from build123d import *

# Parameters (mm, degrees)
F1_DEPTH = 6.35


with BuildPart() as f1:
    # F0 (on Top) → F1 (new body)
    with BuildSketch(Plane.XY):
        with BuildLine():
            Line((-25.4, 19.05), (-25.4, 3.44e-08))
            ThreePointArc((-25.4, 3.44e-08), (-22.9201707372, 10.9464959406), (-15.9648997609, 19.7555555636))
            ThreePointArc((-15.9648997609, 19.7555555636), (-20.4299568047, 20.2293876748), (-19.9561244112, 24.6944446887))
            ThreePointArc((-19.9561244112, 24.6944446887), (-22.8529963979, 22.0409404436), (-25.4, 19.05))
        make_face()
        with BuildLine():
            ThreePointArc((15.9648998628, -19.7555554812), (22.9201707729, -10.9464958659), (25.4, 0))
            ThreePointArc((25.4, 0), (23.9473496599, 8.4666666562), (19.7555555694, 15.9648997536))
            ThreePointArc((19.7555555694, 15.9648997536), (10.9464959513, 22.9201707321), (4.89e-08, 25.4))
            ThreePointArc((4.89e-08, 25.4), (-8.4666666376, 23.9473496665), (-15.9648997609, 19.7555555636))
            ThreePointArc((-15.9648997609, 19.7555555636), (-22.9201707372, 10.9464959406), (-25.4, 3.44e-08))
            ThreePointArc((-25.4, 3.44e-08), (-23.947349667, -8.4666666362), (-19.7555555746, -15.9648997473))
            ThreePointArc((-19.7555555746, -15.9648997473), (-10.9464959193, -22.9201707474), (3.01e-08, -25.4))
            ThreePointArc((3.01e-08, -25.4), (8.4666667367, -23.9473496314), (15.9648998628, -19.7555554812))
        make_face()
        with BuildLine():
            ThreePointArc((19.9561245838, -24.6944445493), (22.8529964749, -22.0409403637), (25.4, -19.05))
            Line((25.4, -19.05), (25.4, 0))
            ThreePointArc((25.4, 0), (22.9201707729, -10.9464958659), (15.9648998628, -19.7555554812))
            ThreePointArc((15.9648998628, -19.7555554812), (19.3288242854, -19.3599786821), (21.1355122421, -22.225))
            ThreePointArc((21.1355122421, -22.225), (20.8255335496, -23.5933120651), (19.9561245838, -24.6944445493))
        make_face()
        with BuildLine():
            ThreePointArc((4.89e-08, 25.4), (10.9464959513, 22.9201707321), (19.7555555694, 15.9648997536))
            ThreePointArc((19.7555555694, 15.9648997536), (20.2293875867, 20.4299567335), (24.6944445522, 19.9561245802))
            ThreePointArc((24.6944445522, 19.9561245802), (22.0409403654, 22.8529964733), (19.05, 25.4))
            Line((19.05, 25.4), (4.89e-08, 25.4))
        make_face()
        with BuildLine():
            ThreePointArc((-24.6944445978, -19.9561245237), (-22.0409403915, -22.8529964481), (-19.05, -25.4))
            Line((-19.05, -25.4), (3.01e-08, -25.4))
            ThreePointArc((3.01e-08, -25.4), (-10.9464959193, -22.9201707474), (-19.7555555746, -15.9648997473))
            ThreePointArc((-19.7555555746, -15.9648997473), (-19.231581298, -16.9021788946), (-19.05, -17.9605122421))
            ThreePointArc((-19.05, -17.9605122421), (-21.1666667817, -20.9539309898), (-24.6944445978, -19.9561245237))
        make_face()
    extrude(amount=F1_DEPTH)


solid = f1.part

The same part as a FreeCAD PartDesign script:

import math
import FreeCAD as App
import Part
import Sketcher
from FreeCAD import Vector
Q = App.Units.Quantity

doc = App.newDocument("Part")
body = doc.addObject("PartDesign::Body", "Body")

# Sketch on XY plane
sketch1 = body.newObject("Sketcher::SketchObject", "Sketch")
sketch1.AttachmentSupport = (doc.getObject("XY_Plane"), [""])
sketch1.MapMode = "FlatFace"
sketch1.addGeometry([
    Part.LineSegment(Vector(-25.4, 19.1, 0), Vector(-25.4, 0, 0)),  # 0
    Part.ArcOfCircle(Part.Circle(Vector(0, 0, 0), Vector(0, 0, 1), 25.4), math.radians(180), math.radians(219)),  # 1
    Part.ArcOfCircle(Part.Circle(Vector(-22.2, -18, 0), Vector(0, 0, 1), 3.2), math.radians(0), math.radians(39)),  # 2
    Part.ArcOfCircle(Part.Circle(Vector(-22.2, -18, 0), Vector(0, 0, 1), 3.2), math.radians(-141), math.radians(0)),  # 3
    Part.ArcOfCircle(Part.Circle(Vector(0, 0, 0), Vector(0, 0, 1), 31.8), math.radians(-141.06), math.radians(-126.87)),  # 4
    Part.LineSegment(Vector(-19.1, -25.4, 0), Vector(0, -25.4, 0)),  # 5
    Part.ArcOfCircle(Part.Circle(Vector(0, 0, 0), Vector(0, 0, 1), 25.4), math.radians(-90), math.radians(-51)),  # 6
    Part.ArcOfCircle(Part.Circle(Vector(18, -22.2, 0), Vector(0, 0, 1), 3.2), math.radians(0), math.radians(129)),  # 7
    Part.ArcOfCircle(Part.Circle(Vector(18, -22.2, 0), Vector(0, 0, 1), 3.2), math.radians(-51), math.radians(0)),  # 8
    Part.ArcOfCircle(Part.Circle(Vector(0, 0, 0), Vector(0, 0, 1), 31.8), math.radians(-51.06), math.radians(-36.87)),  # 9
    Part.LineSegment(Vector(25.4, -19.1, 0), Vector(25.4, 0, 0)),  # 10
    Part.ArcOfCircle(Part.Circle(Vector(0, 0, 0), Vector(0, 0, 1), 25.4), math.radians(0), math.radians(39)),  # 11
    Part.ArcOfCircle(Part.Circle(Vector(22.2, 18, 0), Vector(0, 0, 1), 3.2), math.radians(39), math.radians(219)),  # 12
    Part.ArcOfCircle(Part.Circle(Vector(0, 0, 0), Vector(0, 0, 1), 31.8), math.radians(38.94), math.radians(53.13)),  # 13
    Part.LineSegment(Vector(19.1, 25.4, 0), Vector(0, 25.4, 0)),  # 14
    Part.ArcOfCircle(Part.Circle(Vector(0, 0, 0), Vector(0, 0, 1), 25.4), math.radians(90), math.radians(129)),  # 15
    Part.ArcOfCircle(Part.Circle(Vector(-18, 22.2, 0), Vector(0, 0, 1), 3.2), math.radians(129), math.radians(309)),  # 16
    Part.ArcOfCircle(Part.Circle(Vector(0, 0, 0), Vector(0, 0, 1), 31.7), math.radians(128.94), math.radians(143.13)),  # 17
], False)
sketch1.addConstraint([
    Sketcher.Constraint("Tangent", 0, 2, 1, 1),
    Sketcher.Constraint("Tangent", 1, 2, 2, 2),
    Sketcher.Constraint("Tangent", 2, 1, 3, 2),
    Sketcher.Constraint("Tangent", 3, 1, 4, 1),
    Sketcher.Constraint("Coincident", 4, 2, 5, 1),
    Sketcher.Constraint("Tangent", 5, 2, 6, 1),
    Sketcher.Constraint("Tangent", 6, 2, 7, 2),
    Sketcher.Constraint("Tangent", 7, 1, 8, 2),
    Sketcher.Constraint("Tangent", 8, 1, 9, 1),
    Sketcher.Constraint("Coincident", 9, 2, 10, 1),
    Sketcher.Constraint("Tangent", 10, 2, 11, 1),
    Sketcher.Constraint("Tangent", 11, 2, 12, 2),
    Sketcher.Constraint("Tangent", 12, 1, 13, 1),
    Sketcher.Constraint("Coincident", 13, 2, 14, 1),
    Sketcher.Constraint("Tangent", 14, 2, 15, 1),
    Sketcher.Constraint("Tangent", 15, 2, 16, 2),
    Sketcher.Constraint("Tangent", 16, 1, 17, 1),
    Sketcher.Constraint("Coincident", 17, 2, 0, 1),
    Sketcher.Constraint("Vertical", 0),
    Sketcher.Constraint("Horizontal", 5),
    Sketcher.Constraint("Vertical", 10),
    Sketcher.Constraint("Horizontal", 14),
    Sketcher.Constraint("Coincident", 1, 3, -1, 1),
    Sketcher.Constraint("Coincident", 4, 3, -1, 1),
    Sketcher.Constraint("Coincident", 6, 3, -1, 1),
    Sketcher.Constraint("Coincident", 9, 3, -1, 1),
    Sketcher.Constraint("Coincident", 11, 3, -1, 1),
    Sketcher.Constraint("Coincident", 13, 3, -1, 1),
    Sketcher.Constraint("Coincident", 15, 3, -1, 1),
    Sketcher.Constraint("Coincident", 17, 3, -1, 1),
    Sketcher.Constraint("Equal", 2, 3),
    Sketcher.Constraint("Equal", 1, 6),
    Sketcher.Constraint("Equal", 3, 7),
    Sketcher.Constraint("Equal", 7, 8),
    Sketcher.Constraint("Equal", 6, 11),
    Sketcher.Constraint("Equal", 8, 12),
    Sketcher.Constraint("Equal", 11, 15),
    Sketcher.Constraint("Equal", 12, 16),
    Sketcher.Constraint("Horizontal", 3, 3, 2, 1),
    Sketcher.Constraint("Horizontal", 8, 3, 7, 1),
    Sketcher.Constraint("Vertical", 2, 1, 4, 2),
    Sketcher.Constraint("Radius", 1, Q("1 in")),
    Sketcher.Constraint("Radius", 4, Q("1.25 in")),
    Sketcher.Constraint("DistanceY", 7, 3, -1, 1, Q("0.875 in")),
    Sketcher.Constraint("DistanceX", -1, 1, 12, 3, Q("0.875 in")),
    Sketcher.Constraint("DistanceY", -1, 1, 16, 3, Q("0.875 in")),
])
pad1 = body.newObject("PartDesign::Pad", "Pad")
pad1.Profile = sketch1
pad1.Length = Q("0.25 in")

doc.recompute()
